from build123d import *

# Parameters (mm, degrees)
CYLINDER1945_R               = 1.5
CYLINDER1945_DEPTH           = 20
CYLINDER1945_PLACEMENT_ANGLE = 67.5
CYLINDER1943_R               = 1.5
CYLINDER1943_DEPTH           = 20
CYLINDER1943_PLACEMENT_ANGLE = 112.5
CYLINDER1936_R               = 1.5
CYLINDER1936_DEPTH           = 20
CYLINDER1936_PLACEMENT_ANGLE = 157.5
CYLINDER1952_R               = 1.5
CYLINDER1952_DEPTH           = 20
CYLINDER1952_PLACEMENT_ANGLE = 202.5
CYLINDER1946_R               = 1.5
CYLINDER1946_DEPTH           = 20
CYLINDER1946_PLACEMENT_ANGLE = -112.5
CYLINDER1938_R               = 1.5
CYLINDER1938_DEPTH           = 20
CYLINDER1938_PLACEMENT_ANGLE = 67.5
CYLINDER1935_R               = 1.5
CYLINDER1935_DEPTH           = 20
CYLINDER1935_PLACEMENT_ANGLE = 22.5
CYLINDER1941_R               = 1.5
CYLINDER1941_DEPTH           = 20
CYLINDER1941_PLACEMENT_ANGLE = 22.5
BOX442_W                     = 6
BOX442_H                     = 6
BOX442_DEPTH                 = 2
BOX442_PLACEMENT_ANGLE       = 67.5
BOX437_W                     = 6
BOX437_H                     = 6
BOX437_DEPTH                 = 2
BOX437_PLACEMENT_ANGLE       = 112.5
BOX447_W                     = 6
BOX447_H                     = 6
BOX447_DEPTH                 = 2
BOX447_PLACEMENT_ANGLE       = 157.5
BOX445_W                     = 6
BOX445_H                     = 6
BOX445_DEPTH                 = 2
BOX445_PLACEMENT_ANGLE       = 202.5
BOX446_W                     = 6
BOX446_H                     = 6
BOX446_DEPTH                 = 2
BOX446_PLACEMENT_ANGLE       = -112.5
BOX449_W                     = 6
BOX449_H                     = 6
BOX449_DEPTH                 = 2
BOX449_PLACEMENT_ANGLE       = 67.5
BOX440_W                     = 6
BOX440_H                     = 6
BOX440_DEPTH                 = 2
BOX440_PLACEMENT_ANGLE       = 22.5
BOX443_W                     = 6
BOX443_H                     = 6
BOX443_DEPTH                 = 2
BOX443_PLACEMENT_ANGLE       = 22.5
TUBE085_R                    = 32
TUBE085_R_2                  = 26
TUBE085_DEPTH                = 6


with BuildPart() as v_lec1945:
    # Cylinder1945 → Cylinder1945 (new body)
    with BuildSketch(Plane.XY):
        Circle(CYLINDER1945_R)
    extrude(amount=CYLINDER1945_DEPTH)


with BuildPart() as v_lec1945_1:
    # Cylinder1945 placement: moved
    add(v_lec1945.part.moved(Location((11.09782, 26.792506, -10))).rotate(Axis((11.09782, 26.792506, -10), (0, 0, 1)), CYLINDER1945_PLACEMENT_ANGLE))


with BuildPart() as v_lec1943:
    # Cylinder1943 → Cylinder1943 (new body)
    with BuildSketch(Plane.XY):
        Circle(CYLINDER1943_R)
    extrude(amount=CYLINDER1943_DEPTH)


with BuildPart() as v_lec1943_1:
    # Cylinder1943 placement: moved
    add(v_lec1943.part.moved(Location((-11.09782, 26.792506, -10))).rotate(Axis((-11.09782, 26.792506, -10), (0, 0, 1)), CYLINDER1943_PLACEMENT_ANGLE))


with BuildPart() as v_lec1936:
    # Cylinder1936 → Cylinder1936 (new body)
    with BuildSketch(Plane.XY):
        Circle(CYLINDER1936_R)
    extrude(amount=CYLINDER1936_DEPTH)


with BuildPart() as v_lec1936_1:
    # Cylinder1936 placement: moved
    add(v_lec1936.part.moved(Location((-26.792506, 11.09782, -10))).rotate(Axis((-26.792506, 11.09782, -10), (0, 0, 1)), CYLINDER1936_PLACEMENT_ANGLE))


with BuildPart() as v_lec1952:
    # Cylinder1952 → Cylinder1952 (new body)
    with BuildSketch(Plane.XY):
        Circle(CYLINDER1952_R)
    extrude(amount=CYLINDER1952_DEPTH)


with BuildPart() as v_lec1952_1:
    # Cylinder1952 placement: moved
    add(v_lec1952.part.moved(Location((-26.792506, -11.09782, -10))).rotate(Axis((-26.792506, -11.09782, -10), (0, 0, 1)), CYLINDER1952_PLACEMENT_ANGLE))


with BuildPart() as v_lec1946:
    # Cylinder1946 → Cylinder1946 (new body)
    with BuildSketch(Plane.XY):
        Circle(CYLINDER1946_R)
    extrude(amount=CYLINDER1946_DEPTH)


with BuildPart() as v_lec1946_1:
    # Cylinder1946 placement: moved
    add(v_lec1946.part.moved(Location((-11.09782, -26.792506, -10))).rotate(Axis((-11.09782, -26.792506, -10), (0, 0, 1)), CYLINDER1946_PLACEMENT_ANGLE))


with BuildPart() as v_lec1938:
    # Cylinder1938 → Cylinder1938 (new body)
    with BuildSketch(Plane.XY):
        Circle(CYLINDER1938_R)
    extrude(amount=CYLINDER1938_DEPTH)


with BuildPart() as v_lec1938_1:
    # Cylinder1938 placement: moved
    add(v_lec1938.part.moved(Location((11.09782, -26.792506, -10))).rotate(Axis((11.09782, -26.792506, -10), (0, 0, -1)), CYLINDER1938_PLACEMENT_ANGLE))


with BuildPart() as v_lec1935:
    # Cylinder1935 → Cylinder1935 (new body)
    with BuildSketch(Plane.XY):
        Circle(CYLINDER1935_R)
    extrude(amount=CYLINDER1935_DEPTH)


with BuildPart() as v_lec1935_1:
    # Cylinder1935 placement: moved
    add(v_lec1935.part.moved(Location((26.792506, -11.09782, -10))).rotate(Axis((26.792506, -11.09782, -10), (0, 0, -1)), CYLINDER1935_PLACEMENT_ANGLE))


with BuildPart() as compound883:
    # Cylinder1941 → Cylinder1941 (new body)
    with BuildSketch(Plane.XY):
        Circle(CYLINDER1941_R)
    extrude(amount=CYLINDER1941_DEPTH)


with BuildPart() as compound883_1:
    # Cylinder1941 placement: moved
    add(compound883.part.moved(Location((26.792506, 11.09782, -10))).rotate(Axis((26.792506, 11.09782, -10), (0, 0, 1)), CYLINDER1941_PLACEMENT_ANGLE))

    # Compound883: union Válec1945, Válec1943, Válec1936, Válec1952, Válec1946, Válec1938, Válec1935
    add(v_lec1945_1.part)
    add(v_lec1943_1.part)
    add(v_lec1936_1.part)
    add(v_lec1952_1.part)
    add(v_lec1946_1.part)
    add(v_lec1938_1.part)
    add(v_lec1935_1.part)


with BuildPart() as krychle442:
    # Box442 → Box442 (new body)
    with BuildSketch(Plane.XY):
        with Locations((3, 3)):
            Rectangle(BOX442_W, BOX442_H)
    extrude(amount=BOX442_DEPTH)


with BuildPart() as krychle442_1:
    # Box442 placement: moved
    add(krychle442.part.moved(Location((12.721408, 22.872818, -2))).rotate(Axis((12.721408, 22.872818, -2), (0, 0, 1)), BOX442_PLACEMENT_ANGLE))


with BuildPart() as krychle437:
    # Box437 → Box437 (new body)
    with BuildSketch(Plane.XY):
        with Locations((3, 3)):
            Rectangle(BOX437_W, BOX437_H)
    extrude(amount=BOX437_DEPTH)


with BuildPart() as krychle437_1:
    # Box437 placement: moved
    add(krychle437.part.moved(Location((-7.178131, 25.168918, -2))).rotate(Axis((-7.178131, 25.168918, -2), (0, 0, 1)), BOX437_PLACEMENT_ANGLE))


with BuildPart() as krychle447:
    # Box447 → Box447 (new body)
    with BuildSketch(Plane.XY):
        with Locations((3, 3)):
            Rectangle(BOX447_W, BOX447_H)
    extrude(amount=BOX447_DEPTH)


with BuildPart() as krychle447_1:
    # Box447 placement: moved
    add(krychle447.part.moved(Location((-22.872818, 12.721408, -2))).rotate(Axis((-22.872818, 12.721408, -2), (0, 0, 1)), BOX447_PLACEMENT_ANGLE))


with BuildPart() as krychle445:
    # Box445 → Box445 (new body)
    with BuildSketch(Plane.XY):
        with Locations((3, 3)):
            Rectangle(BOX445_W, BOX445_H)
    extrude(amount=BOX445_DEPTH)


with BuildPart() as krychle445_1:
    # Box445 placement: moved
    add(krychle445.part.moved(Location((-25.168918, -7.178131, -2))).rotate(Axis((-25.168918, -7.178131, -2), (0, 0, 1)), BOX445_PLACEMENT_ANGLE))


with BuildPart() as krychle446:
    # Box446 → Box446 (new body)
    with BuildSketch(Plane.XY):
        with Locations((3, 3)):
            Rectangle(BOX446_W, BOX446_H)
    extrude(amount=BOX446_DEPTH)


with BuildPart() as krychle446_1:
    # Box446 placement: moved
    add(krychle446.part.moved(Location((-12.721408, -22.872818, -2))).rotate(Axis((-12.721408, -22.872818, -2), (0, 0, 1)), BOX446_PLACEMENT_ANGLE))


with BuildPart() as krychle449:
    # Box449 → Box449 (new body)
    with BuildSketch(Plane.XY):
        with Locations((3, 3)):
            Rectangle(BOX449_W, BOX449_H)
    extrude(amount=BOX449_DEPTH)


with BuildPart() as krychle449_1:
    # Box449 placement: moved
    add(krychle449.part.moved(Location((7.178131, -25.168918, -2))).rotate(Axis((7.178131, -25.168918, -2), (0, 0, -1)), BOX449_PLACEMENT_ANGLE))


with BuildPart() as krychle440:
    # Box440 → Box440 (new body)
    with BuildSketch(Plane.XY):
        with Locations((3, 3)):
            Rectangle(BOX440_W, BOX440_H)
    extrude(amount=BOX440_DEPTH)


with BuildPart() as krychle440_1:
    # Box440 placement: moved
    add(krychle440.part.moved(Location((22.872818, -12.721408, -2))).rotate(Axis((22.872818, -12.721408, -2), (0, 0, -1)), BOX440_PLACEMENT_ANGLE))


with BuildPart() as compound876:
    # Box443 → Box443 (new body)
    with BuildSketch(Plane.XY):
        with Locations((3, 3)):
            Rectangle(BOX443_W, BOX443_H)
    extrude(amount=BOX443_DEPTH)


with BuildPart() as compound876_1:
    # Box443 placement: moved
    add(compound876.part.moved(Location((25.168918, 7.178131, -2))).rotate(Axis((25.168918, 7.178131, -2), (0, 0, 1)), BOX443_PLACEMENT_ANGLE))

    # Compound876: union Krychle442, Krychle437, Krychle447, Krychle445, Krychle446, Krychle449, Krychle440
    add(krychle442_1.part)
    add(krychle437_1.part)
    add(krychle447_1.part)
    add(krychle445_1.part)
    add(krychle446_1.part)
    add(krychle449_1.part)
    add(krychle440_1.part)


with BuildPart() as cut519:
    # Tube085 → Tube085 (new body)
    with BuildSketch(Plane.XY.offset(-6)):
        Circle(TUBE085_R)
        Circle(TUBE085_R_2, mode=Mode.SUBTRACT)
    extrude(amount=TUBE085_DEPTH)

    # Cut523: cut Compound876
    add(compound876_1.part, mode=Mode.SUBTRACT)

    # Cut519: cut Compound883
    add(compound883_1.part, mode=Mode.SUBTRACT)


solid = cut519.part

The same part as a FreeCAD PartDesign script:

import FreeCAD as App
import Part
import Sketcher
from FreeCAD import Vector
Q = App.Units.Quantity

doc = App.newDocument("Part")
params = doc.addObject("Spreadsheet::Sheet", "Params")
for row, (alias, value) in enumerate([
    ("sketch1_diameter", "3 mm"),
    ("pad1_length", "20 mm"),
    ("sketch2_diameter", "3 mm"),
    ("pad2_length", "20 mm"),
    ("sketch3_diameter", "3 mm"),
    ("pad3_length", "20 mm"),
    ("sketch4_diameter", "3 mm"),
    ("pad4_length", "20 mm"),
    ("sketch5_diameter", "3 mm"),
    ("pad5_length", "20 mm"),
    ("sketch6_diameter", "3 mm"),
    ("pad6_length", "20 mm"),
    ("sketch7_diameter", "3 mm"),
    ("pad7_length", "20 mm"),
    ("sketch8_diameter", "3 mm"),
    ("pad8_length", "20 mm"),
    ("sketch9_width", "6 mm"),
    ("pad9_length", "2 mm"),
    ("sketch10_width", "6 mm"),
    ("pad10_length", "2 mm"),
    ("sketch11_width", "6 mm"),
    ("pad11_length", "2 mm"),
    ("sketch12_width", "6 mm"),
    ("pad12_length", "2 mm"),
    ("sketch13_width", "6 mm"),
    ("pad13_length", "2 mm"),
    ("sketch14_width", "6 mm"),
    ("pad14_length", "2 mm"),
    ("sketch15_width", "6 mm"),
    ("pad15_length", "2 mm"),
    ("sketch16_width", "6 mm"),
    ("pad16_length", "2 mm"),
    ("sketch17_diameter", "64 mm"),
    ("sketch17_diameter2", "52 mm"),
    ("pad17_length", "6 mm"),
], start=1):
    params.set(f"A{row}", alias)
    params.set(f"B{row}", "=" + value)
    params.setAlias(f"B{row}", alias)

body = doc.addObject("PartDesign::Body", "Body")

sketch1 = doc.addObject("Sketcher::SketchObject", "Sketch")
body.addObject(sketch1)
sketch1.AttachmentSupport = (doc.XY_Plane, [""])
sketch1.MapMode = "FlatFace"
sketch1.addGeometry(Part.Circle(Vector(0, 0, 0), Vector(0, 0, 1), 1.5), False)
sketch1.addConstraint([
    Sketcher.Constraint("Coincident", 0, 3, -1, 1),
    Sketcher.Constraint("Diameter", 0, Q("3 mm")),
])
sketch1.setExpression("Constraints[1]", "Params.sketch1_diameter")
pad1 = doc.addObject("PartDesign::Pad", "Pad")
body.addObject(pad1)
pad1.Profile = sketch1
pad1.setExpression("Length", "Params.pad1_length")
body2 = doc.addObject("PartDesign::Body", "Body001")
doc.recompute()

body.Placement = App.Placement(Vector(11.09782, 26.792506, -10), App.Rotation(Vector(0, 0, 1), 67.5))
boolean = doc.addObject("PartDesign::Boolean", "Boolean")
body2.addObject(boolean)
boolean.Type = "Fuse"
boolean.addObjects([body])
body3 = doc.addObject("PartDesign::Body", "Body002")

sketch2 = doc.addObject("Sketcher::SketchObject", "Sketch001")
body3.addObject(sketch2)
sketch2.AttachmentSupport = (doc.getObject("XY_Plane002"), [""])
sketch2.MapMode = "FlatFace"
sketch2.addGeometry(Part.Circle(Vector(0, 0, 0), Vector(0, 0, 1), 1.5), False)
sketch2.addConstraint([
    Sketcher.Constraint("Coincident", 0, 3, -1, 1),
    Sketcher.Constraint("Diameter", 0, Q("3 mm")),
])
sketch2.setExpression("Constraints[1]", "Params.sketch2_diameter")
pad2 = doc.addObject("PartDesign::Pad", "Pad001")
body3.addObject(pad2)
pad2.Profile = sketch2
pad2.setExpression("Length", "Params.pad2_length")
body4 = doc.addObject("PartDesign::Body", "Body003")
doc.recompute()

body3.Placement = App.Placement(Vector(-11.09782, 26.792506, -10), App.Rotation(Vector(0, 0, 1), 112.5))
boolean2 = doc.addObject("PartDesign::Boolean", "Boolean001")
body4.addObject(boolean2)
boolean2.Type = "Fuse"
boolean2.addObjects([body3])
body5 = doc.addObject("PartDesign::Body", "Body004")

sketch3 = doc.addObject("Sketcher::SketchObject", "Sketch002")
body5.addObject(sketch3)
sketch3.AttachmentSupport = (doc.getObject("XY_Plane004"), [""])
sketch3.MapMode = "FlatFace"
sketch3.addGeometry(Part.Circle(Vector(0, 0, 0), Vector(0, 0, 1), 1.5), False)
sketch3.addConstraint([
    Sketcher.Constraint("Coincident", 0, 3, -1, 1),
    Sketcher.Constraint("Diameter", 0, Q("3 mm")),
])
sketch3.setExpression("Constraints[1]", "Params.sketch3_diameter")
pad3 = doc.addObject("PartDesign::Pad", "Pad002")
body5.addObject(pad3)
pad3.Profile = sketch3
pad3.setExpression("Length", "Params.pad3_length")
body6 = doc.addObject("PartDesign::Body", "Body005")
doc.recompute()

body5.Placement = App.Placement(Vector(-26.792506, 11.09782, -10), App.Rotation(Vector(0, 0, 1), 157.5))
boolean3 = doc.addObject("PartDesign::Boolean", "Boolean002")
body6.addObject(boolean3)
boolean3.Type = "Fuse"
boolean3.addObjects([body5])
body7 = doc.addObject("PartDesign::Body", "Body006")

sketch4 = doc.addObject("Sketcher::SketchObject", "Sketch003")
body7.addObject(sketch4)
sketch4.AttachmentSupport = (doc.getObject("XY_Plane006"), [""])
sketch4.MapMode = "FlatFace"
sketch4.addGeometry(Part.Circle(Vector(0, 0, 0), Vector(0, 0, 1), 1.5), False)
sketch4.addConstraint([
    Sketcher.Constraint("Coincident", 0, 3, -1, 1),
    Sketcher.Constraint("Diameter", 0, Q("3 mm")),
])
sketch4.setExpression("Constraints[1]", "Params.sketch4_diameter")
pad4 = doc.addObject("PartDesign::Pad", "Pad003")
body7.addObject(pad4)
pad4.Profile = sketch4
pad4.setExpression("Length", "Params.pad4_length")
body8 = doc.addObject("PartDesign::Body", "Body007")
doc.recompute()

body7.Placement = App.Placement(Vector(-26.792506, -11.09782, -10), App.Rotation(Vector(0, 0, 1), 202.5))
boolean4 = doc.addObject("PartDesign::Boolean", "Boolean003")
body8.addObject(boolean4)
boolean4.Type = "Fuse"
boolean4.addObjects([body7])
body9 = doc.addObject("PartDesign::Body", "Body008")

sketch5 = doc.addObject("Sketcher::SketchObject", "Sketch004")
body9.addObject(sketch5)
sketch5.AttachmentSupport = (doc.getObject("XY_Plane008"), [""])
sketch5.MapMode = "FlatFace"
sketch5.addGeometry(Part.Circle(Vector(0, 0, 0), Vector(0, 0, 1), 1.5), False)
sketch5.addConstraint([
    Sketcher.Constraint("Coincident", 0, 3, -1, 1),
    Sketcher.Constraint("Diameter", 0, Q("3 mm")),
])
sketch5.setExpression("Constraints[1]", "Params.sketch5_diameter")
pad5 = doc.addObject("PartDesign::Pad", "Pad004")
body9.addObject(pad5)
pad5.Profile = sketch5
pad5.setExpression("Length", "Params.pad5_length")
body10 = doc.addObject("PartDesign::Body", "Body009")
doc.recompute()

body9.Placement = App.Placement(Vector(-11.09782, -26.792506, -10), App.Rotation(Vector(0, 0, 1), 247.5))
boolean5 = doc.addObject("PartDesign::Boolean", "Boolean004")
body10.addObject(boolean5)
boolean5.Type = "Fuse"
boolean5.addObjects([body9])
body11 = doc.addObject("PartDesign::Body", "Body010")

sketch6 = doc.addObject("Sketcher::SketchObject", "Sketch005")
body11.addObject(sketch6)
sketch6.AttachmentSupport = (doc.getObject("XY_Plane010"), [""])
sketch6.MapMode = "FlatFace"
sketch6.addGeometry(Part.Circle(Vector(0, 0, 0), Vector(0, 0, 1), 1.5), False)
sketch6.addConstraint([
    Sketcher.Constraint("Coincident", 0, 3, -1, 1),
    Sketcher.Constraint("Diameter", 0, Q("3 mm")),
])
sketch6.setExpression("Constraints[1]", "Params.sketch6_diameter")
pad6 = doc.addObject("PartDesign::Pad", "Pad005")
body11.addObject(pad6)
pad6.Profile = sketch6
pad6.setExpression("Length", "Params.pad6_length")
body12 = doc.addObject("PartDesign::Body", "Body011")
doc.recompute()

body11.Placement = App.Placement(Vector(11.09782, -26.792506, -10), App.Rotation(Vector(0, 0, -1), 67.5))
boolean6 = doc.addObject("PartDesign::Boolean", "Boolean005")
body12.addObject(boolean6)
boolean6.Type = "Fuse"
boolean6.addObjects([body11])
body13 = doc.addObject("PartDesign::Body", "Body012")

sketch7 = doc.addObject("Sketcher::SketchObject", "Sketch006")
body13.addObject(sketch7)
sketch7.AttachmentSupport = (doc.getObject("XY_Plane012"), [""])
sketch7.MapMode = "FlatFace"
sketch7.addGeometry(Part.Circle(Vector(0, 0, 0), Vector(0, 0, 1), 1.5), False)
sketch7.addConstraint([
    Sketcher.Constraint("Coincident", 0, 3, -1, 1),
    Sketcher.Constraint("Diameter", 0, Q("3 mm")),
])
sketch7.setExpression("Constraints[1]", "Params.sketch7_diameter")
pad7 = doc.addObject("PartDesign::Pad", "Pad006")
body13.addObject(pad7)
pad7.Profile = sketch7
pad7.setExpression("Length", "Params.pad7_length")
body14 = doc.addObject("PartDesign::Body", "Body013")
doc.recompute()

body13.Placement = App.Placement(Vector(26.792506, -11.09782, -10), App.Rotation(Vector(0, 0, -1), 22.5))
boolean7 = doc.addObject("PartDesign::Boolean", "Boolean006")
body14.addObject(boolean7)
boolean7.Type = "Fuse"
boolean7.addObjects([body13])
body15 = doc.addObject("PartDesign::Body", "Body014")

sketch8 = doc.addObject("Sketcher::SketchObject", "Sketch007")
body15.addObject(sketch8)
sketch8.AttachmentSupport = (doc.getObject("XY_Plane014"), [""])
sketch8.MapMode = "FlatFace"
sketch8.addGeometry(Part.Circle(Vector(0, 0, 0), Vector(0, 0, 1), 1.5), False)
sketch8.addConstraint([
    Sketcher.Constraint("Coincident", 0, 3, -1, 1),
    Sketcher.Constraint("Diameter", 0, Q("3 mm")),
])
sketch8.setExpression("Constraints[1]", "Params.sketch8_diameter")
pad8 = doc.addObject("PartDesign::Pad", "Pad007")
body15.addObject(pad8)
pad8.Profile = sketch8
pad8.setExpression("Length", "Params.pad8_length")
body16 = doc.addObject("PartDesign::Body", "Body015")
body16.AllowCompound = True
doc.recompute()

body15.Placement = App.Placement(Vector(26.792506, 11.09782, -10), App.Rotation(Vector(0, 0, 1), 22.5))
boolean8 = doc.addObject("PartDesign::Boolean", "Boolean007")
body16.addObject(boolean8)
boolean8.Type = "Fuse"
boolean8.addObjects([body15])
doc.recompute()

boolean9 = doc.addObject("PartDesign::Boolean", "Boolean008")
body16.addObject(boolean9)
boolean9.Type = "Fuse"
boolean9.addObjects([body2])
doc.recompute()

boolean10 = doc.addObject("PartDesign::Boolean", "Boolean009")
body16.addObject(boolean10)
boolean10.Type = "Fuse"
boolean10.addObjects([body4])
doc.recompute()

boolean11 = doc.addObject("PartDesign::Boolean", "Boolean010")
body16.addObject(boolean11)
boolean11.Type = "Fuse"
boolean11.addObjects([body6])
doc.recompute()

boolean12 = doc.addObject("PartDesign::Boolean", "Boolean011")
body16.addObject(boolean12)
boolean12.Type = "Fuse"
boolean12.addObjects([body8])
doc.recompute()

boolean13 = doc.addObject("PartDesign::Boolean", "Boolean012")
body16.addObject(boolean13)
boolean13.Type = "Fuse"
boolean13.addObjects([body10])
doc.recompute()

boolean14 = doc.addObject("PartDesign::Boolean", "Boolean013")
body16.addObject(boolean14)
boolean14.Type = "Fuse"
boolean14.addObjects([body12])
doc.recompute()

boolean15 = doc.addObject("PartDesign::Boolean", "Boolean014")
body16.addObject(boolean15)
boolean15.Type = "Fuse"
boolean15.addObjects([body14])
body17 = doc.addObject("PartDesign::Body", "Body016")

sketch9 = doc.addObject("Sketcher::SketchObject", "Sketch008")
body17.addObject(sketch9)
sketch9.AttachmentSupport = (doc.getObject("XY_Plane016"), [""])
sketch9.MapMode = "FlatFace"
sketch9.addGeometry([
    Part.LineSegment(Vector(0, 6, 0), Vector(0, 0, 0)),
    Part.LineSegment(Vector(0, 0, 0), Vector(6, 0, 0)),
    Part.LineSegment(Vector(6, 0, 0), Vector(6, 6, 0)),
    Part.LineSegment(Vector(6, 6, 0), Vector(0, 6, 0)),
], False)
sketch9.addConstraint([
    Sketcher.Constraint("Coincident", 0, 2, 1, 1),
    Sketcher.Constraint("Coincident", 1, 2, 2, 1),
    Sketcher.Constraint("Coincident", 2, 2, 3, 1),
    Sketcher.Constraint("Coincident", 3, 2, 0, 1),
    Sketcher.Constraint("Vertical", 0),
    Sketcher.Constraint("Horizontal", 1),
    Sketcher.Constraint("Vertical", 2),
    Sketcher.Constraint("Horizontal", 3),
    Sketcher.Constraint("Coincident", 0, 2, -1, 1),
    Sketcher.Constraint("Equal", 3, 0),
    Sketcher.Constraint("DistanceX", 1, 1, 1, 2, Q("6 mm")),
])
sketch9.setExpression("Constraints[10]", "Params.sketch9_width")
pad9 = doc.addObject("PartDesign::Pad", "Pad008")
body17.addObject(pad9)
pad9.Profile = sketch9
pad9.setExpression("Length", "Params.pad9_length")
body18 = doc.addObject("PartDesign::Body", "Body017")
doc.recompute()

body17.Placement = App.Placement(Vector(12.721408, 22.872818, -2), App.Rotation(Vector(0, 0, 1), 67.5))
boolean16 = doc.addObject("PartDesign::Boolean", "Boolean015")
body18.addObject(boolean16)
boolean16.Type = "Fuse"
boolean16.addObjects([body17])
body19 = doc.addObject("PartDesign::Body", "Body018")

sketch10 = doc.addObject("Sketcher::SketchObject", "Sketch009")
body19.addObject(sketch10)
sketch10.AttachmentSupport = (doc.getObject("XY_Plane018"), [""])
sketch10.MapMode = "FlatFace"
sketch10.addGeometry([
    Part.LineSegment(Vector(0, 6, 0), Vector(0, 0, 0)),
    Part.LineSegment(Vector(0, 0, 0), Vector(6, 0, 0)),
    Part.LineSegment(Vector(6, 0, 0), Vector(6, 6, 0)),
    Part.LineSegment(Vector(6, 6, 0), Vector(0, 6, 0)),
], False)
sketch10.addConstraint([
    Sketcher.Constraint("Coincident", 0, 2, 1, 1),
    Sketcher.Constraint("Coincident", 1, 2, 2, 1),
    Sketcher.Constraint("Coincident", 2, 2, 3, 1),
    Sketcher.Constraint("Coincident", 3, 2, 0, 1),
    Sketcher.Constraint("Vertical", 0),
    Sketcher.Constraint("Horizontal", 1),
    Sketcher.Constraint("Vertical", 2),
    Sketcher.Constraint("Horizontal", 3),
    Sketcher.Constraint("Coincident", 0, 2, -1, 1),
    Sketcher.Constraint("Equal", 3, 0),
    Sketcher.Constraint("DistanceX", 1, 1, 1, 2, Q("6 mm")),
])
sketch10.setExpression("Constraints[10]", "Params.sketch10_width")
pad10 = doc.addObject("PartDesign::Pad", "Pad009")
body19.addObject(pad10)
pad10.Profile = sketch10
pad10.setExpression("Length", "Params.pad10_length")
body20 = doc.addObject("PartDesign::Body", "Body019")
doc.recompute()

body19.Placement = App.Placement(Vector(-7.178131, 25.168918, -2), App.Rotation(Vector(0, 0, 1), 112.5))
boolean17 = doc.addObject("PartDesign::Boolean", "Boolean016")
body20.addObject(boolean17)
boolean17.Type = "Fuse"
boolean17.addObjects([body19])
body21 = doc.addObject("PartDesign::Body", "Body020")

sketch11 = doc.addObject("Sketcher::SketchObject", "Sketch010")
body21.addObject(sketch11)
sketch11.AttachmentSupport = (doc.getObject("XY_Plane020"), [""])
sketch11.MapMode = "FlatFace"
sketch11.addGeometry([
    Part.LineSegment(Vector(0, 6, 0), Vector(0, 0, 0)),
    Part.LineSegment(Vector(0, 0, 0), Vector(6, 0, 0)),
    Part.LineSegment(Vector(6, 0, 0), Vector(6, 6, 0)),
    Part.LineSegment(Vector(6, 6, 0), Vector(0, 6, 0)),
], False)
sketch11.addConstraint([
    Sketcher.Constraint("Coincident", 0, 2, 1, 1),
    Sketcher.Constraint("Coincident", 1, 2, 2, 1),
    Sketcher.Constraint("Coincident", 2, 2, 3, 1),
    Sketcher.Constraint("Coincident", 3, 2, 0, 1),
    Sketcher.Constraint("Vertical", 0),
    Sketcher.Constraint("Horizontal", 1),
    Sketcher.Constraint("Vertical", 2),
    Sketcher.Constraint("Horizontal", 3),
    Sketcher.Constraint("Coincident", 0, 2, -1, 1),
    Sketcher.Constraint("Equal", 3, 0),
    Sketcher.Constraint("DistanceX", 1, 1, 1, 2, Q("6 mm")),
])
sketch11.setExpression("Constraints[10]", "Params.sketch11_width")
pad11 = doc.addObject("PartDesign::Pad", "Pad010")
body21.addObject(pad11)
pad11.Profile = sketch11
pad11.setExpression("Length", "Params.pad11_length")
body22 = doc.addObject("PartDesign::Body", "Body021")
doc.recompute()

body21.Placement = App.Placement(Vector(-22.872818, 12.721408, -2), App.Rotation(Vector(0, 0, 1), 157.5))
boolean18 = doc.addObject("PartDesign::Boolean", "Boolean017")
body22.addObject(boolean18)
boolean18.Type = "Fuse"
boolean18.addObjects([body21])
body23 = doc.addObject("PartDesign::Body", "Body022")

sketch12 = doc.addObject("Sketcher::SketchObject", "Sketch011")
body23.addObject(sketch12)
sketch12.AttachmentSupport = (doc.getObject("XY_Plane022"), [""])
sketch12.MapMode = "FlatFace"
sketch12.addGeometry([
    Part.LineSegment(Vector(0, 6, 0), Vector(0, 0, 0)),
    Part.LineSegment(Vector(0, 0, 0), Vector(6, 0, 0)),
    Part.LineSegment(Vector(6, 0, 0), Vector(6, 6, 0)),
    Part.LineSegment(Vector(6, 6, 0), Vector(0, 6, 0)),
], False)
sketch12.addConstraint([
    Sketcher.Constraint("Coincident", 0, 2, 1, 1),
    Sketcher.Constraint("Coincident", 1, 2, 2, 1),
    Sketcher.Constraint("Coincident", 2, 2, 3, 1),
    Sketcher.Constraint("Coincident", 3, 2, 0, 1),
    Sketcher.Constraint("Vertical", 0),
    Sketcher.Constraint("Horizontal", 1),
    Sketcher.Constraint("Vertical", 2),
    Sketcher.Constraint("Horizontal", 3),
    Sketcher.Constraint("Coincident", 0, 2, -1, 1),
    Sketcher.Constraint("Equal", 3, 0),
    Sketcher.Constraint("DistanceX", 1, 1, 1, 2, Q("6 mm")),
])
sketch12.setExpression("Constraints[10]", "Params.sketch12_width")
pad12 = doc.addObject("PartDesign::Pad", "Pad011")
body23.addObject(pad12)
pad12.Profile = sketch12
pad12.setExpression("Length", "Params.pad12_length")
body24 = doc.addObject("PartDesign::Body", "Body023")
doc.recompute()

body23.Placement = App.Placement(Vector(-25.168918, -7.178131, -2), App.Rotation(Vector(0, 0, 1), 202.5))
boolean19 = doc.addObject("PartDesign::Boolean", "Boolean018")
body24.addObject(boolean19)
boolean19.Type = "Fuse"
boolean19.addObjects([body23])
body25 = doc.addObject("PartDesign::Body", "Body024")

sketch13 = doc.addObject("Sketcher::SketchObject", "Sketch012")
body25.addObject(sketch13)
sketch13.AttachmentSupport = (doc.getObject("XY_Plane024"), [""])
sketch13.MapMode = "FlatFace"
sketch13.addGeometry([
    Part.LineSegment(Vector(0, 6, 0), Vector(0, 0, 0)),
    Part.LineSegment(Vector(0, 0, 0), Vector(6, 0, 0)),
    Part.LineSegment(Vector(6, 0, 0), Vector(6, 6, 0)),
    Part.LineSegment(Vector(6, 6, 0), Vector(0, 6, 0)),
], False)
sketch13.addConstraint([
    Sketcher.Constraint("Coincident", 0, 2, 1, 1),
    Sketcher.Constraint("Coincident", 1, 2, 2, 1),
    Sketcher.Constraint("Coincident", 2, 2, 3, 1),
    Sketcher.Constraint("Coincident", 3, 2, 0, 1),
    Sketcher.Constraint("Vertical", 0),
    Sketcher.Constraint("Horizontal", 1),
    Sketcher.Constraint("Vertical", 2),
    Sketcher.Constraint("Horizontal", 3),
    Sketcher.Constraint("Coincident", 0, 2, -1, 1),
    Sketcher.Constraint("Equal", 3, 0),
    Sketcher.Constraint("DistanceX", 1, 1, 1, 2, Q("6 mm")),
])
sketch13.setExpression("Constraints[10]", "Params.sketch13_width")
pad13 = doc.addObject("PartDesign::Pad", "Pad012")
body25.addObject(pad13)
pad13.Profile = sketch13
pad13.setExpression("Length", "Params.pad13_length")
body26 = doc.addObject("PartDesign::Body", "Body025")
doc.recompute()

body25.Placement = App.Placement(Vector(-12.721408, -22.872818, -2), App.Rotation(Vector(0, 0, 1), 247.5))
boolean20 = doc.addObject("PartDesign::Boolean", "Boolean019")
body26.addObject(boolean20)
boolean20.Type = "Fuse"
boolean20.addObjects([body25])
body27 = doc.addObject("PartDesign::Body", "Body026")

sketch14 = doc.addObject("Sketcher::SketchObject", "Sketch013")
body27.addObject(sketch14)
sketch14.AttachmentSupport = (doc.getObject("XY_Plane026"), [""])
sketch14.MapMode = "FlatFace"
sketch14.addGeometry([
    Part.LineSegment(Vector(0, 6, 0), Vector(0, 0, 0)),
    Part.LineSegment(Vector(0, 0, 0), Vector(6, 0, 0)),
    Part.LineSegment(Vector(6, 0, 0), Vector(6, 6, 0)),
    Part.LineSegment(Vector(6, 6, 0), Vector(0, 6, 0)),
], False)
sketch14.addConstraint([
    Sketcher.Constraint("Coincident", 0, 2, 1, 1),
    Sketcher.Constraint("Coincident", 1, 2, 2, 1),
    Sketcher.Constraint("Coincident", 2, 2, 3, 1),
    Sketcher.Constraint("Coincident", 3, 2, 0, 1),
    Sketcher.Constraint("Vertical", 0),
    Sketcher.Constraint("Horizontal", 1),
    Sketcher.Constraint("Vertical", 2),
    Sketcher.Constraint("Horizontal", 3),
    Sketcher.Constraint("Coincident", 0, 2, -1, 1),
    Sketcher.Constraint("Equal", 3, 0),
    Sketcher.Constraint("DistanceX", 1, 1, 1, 2, Q("6 mm")),
])
sketch14.setExpression("Constraints[10]", "Params.sketch14_width")
pad14 = doc.addObject("PartDesign::Pad", "Pad013")
body27.addObject(pad14)
pad14.Profile = sketch14
pad14.setExpression("Length", "Params.pad14_length")
body28 = doc.addObject("PartDesign::Body", "Body027")
doc.recompute()

body27.Placement = App.Placement(Vector(7.178131, -25.168918, -2), App.Rotation(Vector(0, 0, -1), 67.5))
boolean21 = doc.addObject("PartDesign::Boolean", "Boolean020")
body28.addObject(boolean21)
boolean21.Type = "Fuse"
boolean21.addObjects([body27])
body29 = doc.addObject("PartDesign::Body", "Body028")

sketch15 = doc.addObject("Sketcher::SketchObject", "Sketch014")
body29.addObject(sketch15)
sketch15.AttachmentSupport = (doc.getObject("XY_Plane028"), [""])
sketch15.MapMode = "FlatFace"
sketch15.addGeometry([
    Part.LineSegment(Vector(0, 6, 0), Vector(0, 0, 0)),
    Part.LineSegment(Vector(0, 0, 0), Vector(6, 0, 0)),
    Part.LineSegment(Vector(6, 0, 0), Vector(6, 6, 0)),
    Part.LineSegment(Vector(6, 6, 0), Vector(0, 6, 0)),
], False)
sketch15.addConstraint([
    Sketcher.Constraint("Coincident", 0, 2, 1, 1),
    Sketcher.Constraint("Coincident", 1, 2, 2, 1),
    Sketcher.Constraint("Coincident", 2, 2, 3, 1),
    Sketcher.Constraint("Coincident", 3, 2, 0, 1),
    Sketcher.Constraint("Vertical", 0),
    Sketcher.Constraint("Horizontal", 1),
    Sketcher.Constraint("Vertical", 2),
    Sketcher.Constraint("Horizontal", 3),
    Sketcher.Constraint("Coincident", 0, 2, -1, 1),
    Sketcher.Constraint("Equal", 3, 0),
    Sketcher.Constraint("DistanceX", 1, 1, 1, 2, Q("6 mm")),
])
sketch15.setExpression("Constraints[10]", "Params.sketch15_width")
pad15 = doc.addObject("PartDesign::Pad", "Pad014")
body29.addObject(pad15)
pad15.Profile = sketch15
pad15.setExpression("Length", "Params.pad15_length")
body30 = doc.addObject("PartDesign::Body", "Body029")
doc.recompute()

body29.Placement = App.Placement(Vector(22.872818, -12.721408, -2), App.Rotation(Vector(0, 0, -1), 22.5))
boolean22 = doc.addObject("PartDesign::Boolean", "Boolean021")
body30.addObject(boolean22)
boolean22.Type = "Fuse"
boolean22.addObjects([body29])
body31 = doc.addObject("PartDesign::Body", "Body030")

sketch16 = doc.addObject("Sketcher::SketchObject", "Sketch015")
body31.addObject(sketch16)
sketch16.AttachmentSupport = (doc.getObject("XY_Plane030"), [""])
sketch16.MapMode = "FlatFace"
sketch16.addGeometry([
    Part.LineSegment(Vector(0, 6, 0), Vector(0, 0, 0)),
    Part.LineSegment(Vector(0, 0, 0), Vector(6, 0, 0)),
    Part.LineSegment(Vector(6, 0, 0), Vector(6, 6, 0)),
    Part.LineSegment(Vector(6, 6, 0), Vector(0, 6, 0)),
], False)
sketch16.addConstraint([
    Sketcher.Constraint("Coincident", 0, 2, 1, 1),
    Sketcher.Constraint("Coincident", 1, 2, 2, 1),
    Sketcher.Constraint("Coincident", 2, 2, 3, 1),
    Sketcher.Constraint("Coincident", 3, 2, 0, 1),
    Sketcher.Constraint("Vertical", 0),
    Sketcher.Constraint("Horizontal", 1),
    Sketcher.Constraint("Vertical", 2),
    Sketcher.Constraint("Horizontal", 3),
    Sketcher.Constraint("Coincident", 0, 2, -1, 1),
    Sketcher.Constraint("Equal", 3, 0),
    Sketcher.Constraint("DistanceX", 1, 1, 1, 2, Q("6 mm")),
])
sketch16.setExpression("Constraints[10]", "Params.sketch16_width")
pad16 = doc.addObject("PartDesign::Pad", "Pad015")
body31.addObject(pad16)
pad16.Profile = sketch16
pad16.setExpression("Length", "Params.pad16_length")
body32 = doc.addObject("PartDesign::Body", "Body031")
body32.AllowCompound = True
doc.recompute()

body31.Placement = App.Placement(Vector(25.168918, 7.178131, -2), App.Rotation(Vector(0, 0, 1), 22.5))
boolean23 = doc.addObject("PartDesign::Boolean", "Boolean022")
body32.addObject(boolean23)
boolean23.Type = "Fuse"
boolean23.addObjects([body31])
doc.recompute()

boolean24 = doc.addObject("PartDesign::Boolean", "Boolean023")
body32.addObject(boolean24)
boolean24.Type = "Fuse"
boolean24.addObjects([body18])
doc.recompute()

boolean25 = doc.addObject("PartDesign::Boolean", "Boolean024")
body32.addObject(boolean25)
boolean25.Type = "Fuse"
boolean25.addObjects([body20])
doc.recompute()

boolean26 = doc.addObject("PartDesign::Boolean", "Boolean025")
body32.addObject(boolean26)
boolean26.Type = "Fuse"
boolean26.addObjects([body22])
doc.recompute()

boolean27 = doc.addObject("PartDesign::Boolean", "Boolean026")
body32.addObject(boolean27)
boolean27.Type = "Fuse"
boolean27.addObjects([body24])
doc.recompute()

boolean28 = doc.addObject("PartDesign::Boolean", "Boolean027")
body32.addObject(boolean28)
boolean28.Type = "Fuse"
boolean28.addObjects([body26])
doc.recompute()

boolean29 = doc.addObject("PartDesign::Boolean", "Boolean028")
body32.addObject(boolean29)
boolean29.Type = "Fuse"
boolean29.addObjects([body28])
doc.recompute()

boolean30 = doc.addObject("PartDesign::Boolean", "Boolean029")
body32.addObject(boolean30)
boolean30.Type = "Fuse"
boolean30.addObjects([body30])
body33 = doc.addObject("PartDesign::Body", "Body032")

sketch17 = doc.addObject("Sketcher::SketchObject", "Sketch016")
body33.addObject(sketch17)
sketch17.AttachmentSupport = (doc.getObject("XY_Plane032"), [""])
sketch17.MapMode = "FlatFace"
sketch17.AttachmentOffset = App.Placement(Vector(0, 0, -6), App.Rotation())
sketch17.addGeometry([
    Part.Circle(Vector(0, 0, 0), Vector(0, 0, 1), 32),
    Part.Circle(Vector(0, 0, 0), Vector(0, 0, 1), 26),
], False)
sketch17.addConstraint([
    Sketcher.Constraint("Coincident", 0, 3, -1, 1),
    Sketcher.Constraint("Coincident", 1, 3, -1, 1),
    Sketcher.Constraint("Diameter", 0, Q("64 mm")),
    Sketcher.Constraint("Diameter", 1, Q("52 mm")),
])
sketch17.setExpression("Constraints[2]", "Params.sketch17_diameter")
sketch17.setExpression("Constraints[3]", "Params.sketch17_diameter2")
pad17 = doc.addObject("PartDesign::Pad", "Pad016")
body33.addObject(pad17)
pad17.Profile = sketch17
pad17.setExpression("Length", "Params.pad17_length")
doc.recompute()

boolean31 = doc.addObject("PartDesign::Boolean", "Boolean030")
body33.addObject(boolean31)
boolean31.Type = "Cut"
boolean31.addObjects([body32])
doc.recompute()

boolean32 = doc.addObject("PartDesign::Boolean", "Boolean031")
body33.addObject(boolean32)
boolean32.Type = "Cut"
boolean32.addObjects([body16])

doc.recompute()
